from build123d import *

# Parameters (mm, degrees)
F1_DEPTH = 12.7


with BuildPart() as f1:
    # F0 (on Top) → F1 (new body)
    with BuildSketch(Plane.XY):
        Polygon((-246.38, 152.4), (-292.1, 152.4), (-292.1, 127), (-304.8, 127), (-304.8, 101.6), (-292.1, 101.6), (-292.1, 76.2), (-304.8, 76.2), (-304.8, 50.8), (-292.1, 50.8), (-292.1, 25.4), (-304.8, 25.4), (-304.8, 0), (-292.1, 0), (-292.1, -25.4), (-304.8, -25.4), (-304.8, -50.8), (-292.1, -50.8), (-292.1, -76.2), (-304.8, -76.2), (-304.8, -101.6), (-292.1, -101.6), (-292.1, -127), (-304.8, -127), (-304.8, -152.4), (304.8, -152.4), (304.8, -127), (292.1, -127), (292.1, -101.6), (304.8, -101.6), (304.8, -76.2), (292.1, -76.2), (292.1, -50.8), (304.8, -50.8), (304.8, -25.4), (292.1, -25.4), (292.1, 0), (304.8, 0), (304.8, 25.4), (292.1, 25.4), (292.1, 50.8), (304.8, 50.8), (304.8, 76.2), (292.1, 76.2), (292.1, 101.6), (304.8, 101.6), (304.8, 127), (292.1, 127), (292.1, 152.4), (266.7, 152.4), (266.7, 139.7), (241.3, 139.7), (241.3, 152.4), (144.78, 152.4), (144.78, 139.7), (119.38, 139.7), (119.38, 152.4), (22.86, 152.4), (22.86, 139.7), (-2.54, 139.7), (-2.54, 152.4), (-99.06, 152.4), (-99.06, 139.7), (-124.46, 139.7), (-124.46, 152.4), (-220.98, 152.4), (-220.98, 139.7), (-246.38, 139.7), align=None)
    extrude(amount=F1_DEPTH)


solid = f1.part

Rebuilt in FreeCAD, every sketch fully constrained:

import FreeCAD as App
import Part
import Sketcher
Q = App.Units.Quantity

doc = App.newDocument("Part")
body = doc.addObject("PartDesign::Body", "Body")

sketch1 = doc.addObject("Sketcher::SketchObject", "Sketch")
body.addObject(sketch1)
sketch1.AttachmentSupport = (doc.XY_Plane, [""])
sketch1.MapMode = "FlatFace"
sketch1.addGeometry(Part.LineSegment(App.Vector(-246.38, 152.4, 0), App.Vector(-292.1, 152.4, 0)), False)
sketch1.addGeometry(Part.LineSegment(App.Vector(-292.1, 152.4, 0), App.Vector(-292.1, 127, 0)), False)
sketch1.addGeometry(Part.LineSegment(App.Vector(-292.1, 127, 0), App.Vector(-304.8, 127, 0)), False)
sketch1.addGeometry(Part.LineSegment(App.Vector(-304.8, 127, 0), App.Vector(-304.8, 101.6, 0)), False)
sketch1.addGeometry(Part.LineSegment(App.Vector(-304.8, 101.6, 0), App.Vector(-292.1, 101.6, 0)), False)
sketch1.addGeometry(Part.LineSegment(App.Vector(-292.1, 101.6, 0), App.Vector(-292.1, 76.2, 0)), False)
sketch1.addGeometry(Part.LineSegment(App.Vector(-292.1, 76.2, 0), App.Vector(-304.8, 76.2, 0)), False)
sketch1.addGeometry(Part.LineSegment(App.Vector(-304.8, 76.2, 0), App.Vector(-304.8, 50.8, 0)), False)
sketch1.addGeometry(Part.LineSegment(App.Vector(-304.8, 50.8, 0), App.Vector(-292.1, 50.8, 0)), False)
sketch1.addGeometry(Part.LineSegment(App.Vector(-292.1, 50.8, 0), App.Vector(-292.1, 25.4, 0)), False)
sketch1.addGeometry(Part.LineSegment(App.Vector(-292.1, 25.4, 0), App.Vector(-304.8, 25.4, 0)), False)
sketch1.addGeometry(Part.LineSegment(App.Vector(-304.8, 25.4, 0), App.Vector(-304.8, 0, 0)), False)
sketch1.addGeometry(Part.LineSegment(App.Vector(-304.8, 0, 0), App.Vector(-292.1, 0, 0)), False)
sketch1.addGeometry(Part.LineSegment(App.Vector(-292.1, 0, 0), App.Vector(-292.1, -25.4, 0)), False)
sketch1.addGeometry(Part.LineSegment(App.Vector(-292.1, -25.4, 0), App.Vector(-304.8, -25.4, 0)), False)
sketch1.addGeometry(Part.LineSegment(App.Vector(-304.8, -25.4, 0), App.Vector(-304.8, -50.8, 0)), False)
sketch1.addGeometry(Part.LineSegment(App.Vector(-304.8, -50.8, 0), App.Vector(-292.1, -50.8, 0)), False)
sketch1.addGeometry(Part.LineSegment(App.Vector(-292.1, -50.8, 0), App.Vector(-292.1, -76.2, 0)), False)
sketch1.addGeometry(Part.LineSegment(App.Vector(-292.1, -76.2, 0), App.Vector(-304.8, -76.2, 0)), False)
sketch1.addGeometry(Part.LineSegment(App.Vector(-304.8, -76.2, 0), App.Vector(-304.8, -101.6, 0)), False)
sketch1.addGeometry(Part.LineSegment(App.Vector(-304.8, -101.6, 0), App.Vector(-292.1, -101.6, 0)), False)
sketch1.addGeometry(Part.LineSegment(App.Vector(-292.1, -101.6, 0), App.Vector(-292.1, -127, 0)), False)
sketch1.addGeometry(Part.LineSegment(App.Vector(-292.1, -127, 0), App.Vector(-304.8, -127, 0)), False)
sketch1.addGeometry(Part.LineSegment(App.Vector(-304.8, -127, 0), App.Vector(-304.8, -152.4, 0)), False)
sketch1.addGeometry(Part.LineSegment(App.Vector(-304.8, -152.4, 0), App.Vector(304.8, -152.4, 0)), False)
sketch1.addGeometry(Part.LineSegment(App.Vector(304.8, -152.4, 0), App.Vector(304.8, -127, 0)), False)
sketch1.addGeometry(Part.LineSegment(App.Vector(304.8, -127, 0), App.Vector(292.1, -127, 0)), False)
sketch1.addGeometry(Part.LineSegment(App.Vector(292.1, -127, 0), App.Vector(292.1, -101.6, 0)), False)
sketch1.addGeometry(Part.LineSegment(App.Vector(292.1, -101.6, 0), App.Vector(304.8, -101.6, 0)), False)
sketch1.addGeometry(Part.LineSegment(App.Vector(304.8, -101.6, 0), App.Vector(304.8, -76.2, 0)), False)
sketch1.addGeometry(Part.LineSegment(App.Vector(304.8, -76.2, 0), App.Vector(292.1, -76.2, 0)), False)
sketch1.addGeometry(Part.LineSegment(App.Vector(292.1, -76.2, 0), App.Vector(292.1, -50.8, 0)), False)
sketch1.addGeometry(Part.LineSegment(App.Vector(292.1, -50.8, 0), App.Vector(304.8, -50.8, 0)), False)
sketch1.addGeometry(Part.LineSegment(App.Vector(304.8, -50.8, 0), App.Vector(304.8, -25.4, 0)), False)
sketch1.addGeometry(Part.LineSegment(App.Vector(304.8, -25.4, 0), App.Vector(292.1, -25.4, 0)), False)
sketch1.addGeometry(Part.LineSegment(App.Vector(292.1, -25.4, 0), App.Vector(292.1, 0, 0)), False)
sketch1.addGeometry(Part.LineSegment(App.Vector(292.1, 0, 0), App.Vector(304.8, 0, 0)), False)
sketch1.addGeometry(Part.LineSegment(App.Vector(304.8, 0, 0), App.Vector(304.8, 25.4, 0)), False)
sketch1.addGeometry(Part.LineSegment(App.Vector(304.8, 25.4, 0), App.Vector(292.1, 25.4, 0)), False)
sketch1.addGeometry(Part.LineSegment(App.Vector(292.1, 25.4, 0), App.Vector(292.1, 50.8, 0)), False)
sketch1.addGeometry(Part.LineSegment(App.Vector(292.1, 50.8, 0), App.Vector(304.8, 50.8, 0)), False)
sketch1.addGeometry(Part.LineSegment(App.Vector(304.8, 50.8, 0), App.Vector(304.8, 76.2, 0)), False)
sketch1.addGeometry(Part.LineSegment(App.Vector(304.8, 76.2, 0), App.Vector(292.1, 76.2, 0)), False)
sketch1.addGeometry(Part.LineSegment(App.Vector(292.1, 76.2, 0), App.Vector(292.1, 101.6, 0)), False)
sketch1.addGeometry(Part.LineSegment(App.Vector(292.1, 101.6, 0), App.Vector(304.8, 101.6, 0)), False)
sketch1.addGeometry(Part.LineSegment(App.Vector(304.8, 101.6, 0), App.Vector(304.8, 127, 0)), False)
sketch1.addGeometry(Part.LineSegment(App.Vector(304.8, 127, 0), App.Vector(292.1, 127, 0)), False)
sketch1.addGeometry(Part.LineSegment(App.Vector(292.1, 127, 0), App.Vector(292.1, 152.4, 0)), False)
sketch1.addGeometry(Part.LineSegment(App.Vector(292.1, 152.4, 0), App.Vector(266.7, 152.4, 0)), False)
sketch1.addGeometry(Part.LineSegment(App.Vector(266.7, 152.4, 0), App.Vector(266.7, 139.7, 0)), False)
sketch1.addGeometry(Part.LineSegment(App.Vector(266.7, 139.7, 0), App.Vector(241.3, 139.7, 0)), False)
sketch1.addGeometry(Part.LineSegment(App.Vector(241.3, 139.7, 0), App.Vector(241.3, 152.4, 0)), False)
sketch1.addGeometry(Part.LineSegment(App.Vector(241.3, 152.4, 0), App.Vector(144.78, 152.4, 0)), False)
sketch1.addGeometry(Part.LineSegment(App.Vector(144.78, 152.4, 0), App.Vector(144.78, 139.7, 0)), False)
sketch1.addGeometry(Part.LineSegment(App.Vector(144.78, 139.7, 0), App.Vector(119.38, 139.7, 0)), False)
sketch1.addGeometry(Part.LineSegment(App.Vector(119.38, 139.7, 0), App.Vector(119.38, 152.4, 0)), False)
sketch1.addGeometry(Part.LineSegment(App.Vector(119.38, 152.4, 0), App.Vector(22.86, 152.4, 0)), False)
sketch1.addGeometry(Part.LineSegment(App.Vector(22.86, 152.4, 0), App.Vector(22.86, 139.7, 0)), False)
sketch1.addGeometry(Part.LineSegment(App.Vector(22.86, 139.7, 0), App.Vector(-2.54, 139.7, 0)), False)
sketch1.addGeometry(Part.LineSegment(App.Vector(-2.54, 139.7, 0), App.Vector(-2.54, 152.4, 0)), False)
sketch1.addGeometry(Part.LineSegment(App.Vector(-2.54, 152.4, 0), App.Vector(-99.06, 152.4, 0)), False)
sketch1.addGeometry(Part.LineSegment(App.Vector(-99.06, 152.4, 0), App.Vector(-99.06, 139.7, 0)), False)
sketch1.addGeometry(Part.LineSegment(App.Vector(-99.06, 139.7, 0), App.Vector(-124.46, 139.7, 0)), False)
sketch1.addGeometry(Part.LineSegment(App.Vector(-124.46, 139.7, 0), App.Vector(-124.46, 152.4, 0)), False)
sketch1.addGeometry(Part.LineSegment(App.Vector(-124.46, 152.4, 0), App.Vector(-220.98, 152.4, 0)), False)
sketch1.addGeometry(Part.LineSegment(App.Vector(-220.98, 152.4, 0), App.Vector(-220.98, 139.7, 0)), False)
sketch1.addGeometry(Part.LineSegment(App.Vector(-220.98, 139.7, 0), App.Vector(-246.38, 139.7, 0)), False)
sketch1.addGeometry(Part.LineSegment(App.Vector(-246.38, 139.7, 0), App.Vector(-246.38, 152.4, 0)), False)
sketch1.addConstraint(Sketcher.Constraint("Coincident", 0, 2, 1, 1))
sketch1.addConstraint(Sketcher.Constraint("Coincident", 1, 2, 2, 1))
sketch1.addConstraint(Sketcher.Constraint("Coincident", 2, 2, 3, 1))
sketch1.addConstraint(Sketcher.Constraint("Coincident", 3, 2, 4, 1))
sketch1.addConstraint(Sketcher.Constraint("Coincident", 4, 2, 5, 1))
sketch1.addConstraint(Sketcher.Constraint("Coincident", 5, 2, 6, 1))
sketch1.addConstraint(Sketcher.Constraint("Coincident", 6, 2, 7, 1))
sketch1.addConstraint(Sketcher.Constraint("Coincident", 7, 2, 8, 1))
sketch1.addConstraint(Sketcher.Constraint("Coincident", 8, 2, 9, 1))
sketch1.addConstraint(Sketcher.Constraint("Coincident", 9, 2, 10, 1))
sketch1.addConstraint(Sketcher.Constraint("Coincident", 10, 2, 11, 1))
sketch1.addConstraint(Sketcher.Constraint("Coincident", 11, 2, 12, 1))
sketch1.addConstraint(Sketcher.Constraint("Coincident", 12, 2, 13, 1))
sketch1.addConstraint(Sketcher.Constraint("Coincident", 13, 2, 14, 1))
sketch1.addConstraint(Sketcher.Constraint("Coincident", 14, 2, 15, 1))
sketch1.addConstraint(Sketcher.Constraint("Coincident", 15, 2, 16, 1))
sketch1.addConstraint(Sketcher.Constraint("Coincident", 16, 2, 17, 1))
sketch1.addConstraint(Sketcher.Constraint("Coincident", 17, 2, 18, 1))
sketch1.addConstraint(Sketcher.Constraint("Coincident", 18, 2, 19, 1))
sketch1.addConstraint(Sketcher.Constraint("Coincident", 19, 2, 20, 1))
sketch1.addConstraint(Sketcher.Constraint("Coincident", 20, 2, 21, 1))
sketch1.addConstraint(Sketcher.Constraint("Coincident", 21, 2, 22, 1))
sketch1.addConstraint(Sketcher.Constraint("Coincident", 22, 2, 23, 1))
sketch1.addConstraint(Sketcher.Constraint("Coincident", 23, 2, 24, 1))
sketch1.addConstraint(Sketcher.Constraint("Coincident", 24, 2, 25, 1))
sketch1.addConstraint(Sketcher.Constraint("Coincident", 25, 2, 26, 1))
sketch1.addConstraint(Sketcher.Constraint("Coincident", 26, 2, 27, 1))
sketch1.addConstraint(Sketcher.Constraint("Coincident", 27, 2, 28, 1))
sketch1.addConstraint(Sketcher.Constraint("Coincident", 28, 2, 29, 1))
sketch1.addConstraint(Sketcher.Constraint("Coincident", 29, 2, 30, 1))
sketch1.addConstraint(Sketcher.Constraint("Coincident", 30, 2, 31, 1))
sketch1.addConstraint(Sketcher.Constraint("Coincident", 31, 2, 32, 1))
sketch1.addConstraint(Sketcher.Constraint("Coincident", 32, 2, 33, 1))
sketch1.addConstraint(Sketcher.Constraint("Coincident", 33, 2, 34, 1))
sketch1.addConstraint(Sketcher.Constraint("Coincident", 34, 2, 35, 1))
sketch1.addConstraint(Sketcher.Constraint("Coincident", 35, 2, 36, 1))
sketch1.addConstraint(Sketcher.Constraint("Coincident", 36, 2, 37, 1))
sketch1.addConstraint(Sketcher.Constraint("Coincident", 37, 2, 38, 1))
sketch1.addConstraint(Sketcher.Constraint("Coincident", 38, 2, 39, 1))
sketch1.addConstraint(Sketcher.Constraint("Coincident", 39, 2, 40, 1))
sketch1.addConstraint(Sketcher.Constraint("Coincident", 40, 2, 41, 1))
sketch1.addConstraint(Sketcher.Constraint("Coincident", 41, 2, 42, 1))
sketch1.addConstraint(Sketcher.Constraint("Coincident", 42, 2, 43, 1))
sketch1.addConstraint(Sketcher.Constraint("Coincident", 43, 2, 44, 1))
sketch1.addConstraint(Sketcher.Constraint("Coincident", 44, 2, 45, 1))
sketch1.addConstraint(Sketcher.Constraint("Coincident", 45, 2, 46, 1))
sketch1.addConstraint(Sketcher.Constraint("Coincident", 46, 2, 47, 1))
sketch1.addConstraint(Sketcher.Constraint("Coincident", 47, 2, 48, 1))
sketch1.addConstraint(Sketcher.Constraint("Coincident", 48, 2, 49, 1))
sketch1.addConstraint(Sketcher.Constraint("Coincident", 49, 2, 50, 1))
sketch1.addConstraint(Sketcher.Constraint("Coincident", 50, 2, 51, 1))
sketch1.addConstraint(Sketcher.Constraint("Coincident", 51, 2, 52, 1))
sketch1.addConstraint(Sketcher.Constraint("Coincident", 52, 2, 53, 1))
sketch1.addConstraint(Sketcher.Constraint("Coincident", 53, 2, 54, 1))
sketch1.addConstraint(Sketcher.Constraint("Coincident", 54, 2, 55, 1))
sketch1.addConstraint(Sketcher.Constraint("Coincident", 55, 2, 56, 1))
sketch1.addConstraint(Sketcher.Constraint("Coincident", 56, 2, 57, 1))
sketch1.addConstraint(Sketcher.Constraint("Coincident", 57, 2, 58, 1))
sketch1.addConstraint(Sketcher.Constraint("Coincident", 58, 2, 59, 1))
sketch1.addConstraint(Sketcher.Constraint("Coincident", 59, 2, 60, 1))
sketch1.addConstraint(Sketcher.Constraint("Coincident", 60, 2, 61, 1))
sketch1.addConstraint(Sketcher.Constraint("Coincident", 61, 2, 62, 1))
sketch1.addConstraint(Sketcher.Constraint("Coincident", 62, 2, 63, 1))
sketch1.addConstraint(Sketcher.Constraint("Coincident", 63, 2, 64, 1))
sketch1.addConstraint(Sketcher.Constraint("Coincident", 64, 2, 65, 1))
sketch1.addConstraint(Sketcher.Constraint("Coincident", 65, 2, 66, 1))
sketch1.addConstraint(Sketcher.Constraint("Coincident", 66, 2, 67, 1))
sketch1.addConstraint(Sketcher.Constraint("Coincident", 67, 2, 0, 1))
sketch1.addConstraint(Sketcher.Constraint("Horizontal", 0))
sketch1.addConstraint(Sketcher.Constraint("Vertical", 1))
sketch1.addConstraint(Sketcher.Constraint("Horizontal", 2))
sketch1.addConstraint(Sketcher.Constraint("Vertical", 3))
sketch1.addConstraint(Sketcher.Constraint("Horizontal", 4))
sketch1.addConstraint(Sketcher.Constraint("Vertical", 5))
sketch1.addConstraint(Sketcher.Constraint("Horizontal", 6))
sketch1.addConstraint(Sketcher.Constraint("Vertical", 7))
sketch1.addConstraint(Sketcher.Constraint("Horizontal", 8))
sketch1.addConstraint(Sketcher.Constraint("Vertical", 9))
sketch1.addConstraint(Sketcher.Constraint("Horizontal", 10))
sketch1.addConstraint(Sketcher.Constraint("Vertical", 11))
sketch1.addConstraint(Sketcher.Constraint("Horizontal", 12))
sketch1.addConstraint(Sketcher.Constraint("Vertical", 13))
sketch1.addConstraint(Sketcher.Constraint("Horizontal", 14))
sketch1.addConstraint(Sketcher.Constraint("Vertical", 15))
sketch1.addConstraint(Sketcher.Constraint("Horizontal", 16))
sketch1.addConstraint(Sketcher.Constraint("Vertical", 17))
sketch1.addConstraint(Sketcher.Constraint("Horizontal", 18))
sketch1.addConstraint(Sketcher.Constraint("Vertical", 19))
sketch1.addConstraint(Sketcher.Constraint("Horizontal", 20))
sketch1.addConstraint(Sketcher.Constraint("Vertical", 21))
sketch1.addConstraint(Sketcher.Constraint("Horizontal", 22))
sketch1.addConstraint(Sketcher.Constraint("Vertical", 23))
sketch1.addConstraint(Sketcher.Constraint("Horizontal", 24))
sketch1.addConstraint(Sketcher.Constraint("Vertical", 25))
sketch1.addConstraint(Sketcher.Constraint("Horizontal", 26))
sketch1.addConstraint(Sketcher.Constraint("Vertical", 27))
sketch1.addConstraint(Sketcher.Constraint("Horizontal", 28))
sketch1.addConstraint(Sketcher.Constraint("Vertical", 29))
sketch1.addConstraint(Sketcher.Constraint("Horizontal", 30))
sketch1.addConstraint(Sketcher.Constraint("Vertical", 31))
sketch1.addConstraint(Sketcher.Constraint("Horizontal", 32))
sketch1.addConstraint(Sketcher.Constraint("Vertical", 33))
sketch1.addConstraint(Sketcher.Constraint("Horizontal", 34))
sketch1.addConstraint(Sketcher.Constraint("Vertical", 35))
sketch1.addConstraint(Sketcher.Constraint("Horizontal", 36))
sketch1.addConstraint(Sketcher.Constraint("Vertical", 37))
sketch1.addConstraint(Sketcher.Constraint("Horizontal", 38))
sketch1.addConstraint(Sketcher.Constraint("Vertical", 39))
sketch1.addConstraint(Sketcher.Constraint("Horizontal", 40))
sketch1.addConstraint(Sketcher.Constraint("Vertical", 41))
sketch1.addConstraint(Sketcher.Constraint("Horizontal", 42))
sketch1.addConstraint(Sketcher.Constraint("Vertical", 43))
sketch1.addConstraint(Sketcher.Constraint("Horizontal", 44))
sketch1.addConstraint(Sketcher.Constraint("Vertical", 45))
sketch1.addConstraint(Sketcher.Constraint("Horizontal", 46))
sketch1.addConstraint(Sketcher.Constraint("Vertical", 47))
sketch1.addConstraint(Sketcher.Constraint("Horizontal", 48))
sketch1.addConstraint(Sketcher.Constraint("Vertical", 49))
sketch1.addConstraint(Sketcher.Constraint("Horizontal", 50))
sketch1.addConstraint(Sketcher.Constraint("Vertical", 51))
sketch1.addConstraint(Sketcher.Constraint("Horizontal", 52))
sketch1.addConstraint(Sketcher.Constraint("Vertical", 53))
sketch1.addConstraint(Sketcher.Constraint("Horizontal", 54))
sketch1.addConstraint(Sketcher.Constraint("Vertical", 55))
sketch1.addConstraint(Sketcher.Constraint("Horizontal", 56))
sketch1.addConstraint(Sketcher.Constraint("Vertical", 57))
sketch1.addConstraint(Sketcher.Constraint("Horizontal", 58))
sketch1.addConstraint(Sketcher.Constraint("Vertical", 59))
sketch1.addConstraint(Sketcher.Constraint("Horizontal", 60))
sketch1.addConstraint(Sketcher.Constraint("Vertical", 61))
sketch1.addConstraint(Sketcher.Constraint("Horizontal", 62))
sketch1.addConstraint(Sketcher.Constraint("Vertical", 63))
sketch1.addConstraint(Sketcher.Constraint("Horizontal", 64))
sketch1.addConstraint(Sketcher.Constraint("Vertical", 65))
sketch1.addConstraint(Sketcher.Constraint("Horizontal", 66))
sketch1.addConstraint(Sketcher.Constraint("Vertical", 67))
sketch1.addConstraint(Sketcher.Constraint("Symmetric", 2, 2, 25, 2, -1, 1))
sketch1.addConstraint(Sketcher.Constraint("Symmetric", 4, 2, 27, 2, -1, 1))
sketch1.addConstraint(Sketcher.Constraint("Symmetric", 6, 2, 29, 2, -1, 1))
sketch1.addConstraint(Sketcher.Constraint("Symmetric", 8, 2, 31, 2, -1, 1))
sketch1.addConstraint(Sketcher.Constraint("Symmetric", 10, 2, 33, 2, -1, 1))
sketch1.addConstraint(Sketcher.Constraint("Symmetric", 12, 2, 35, 2, -1, 1))
sketch1.addConstraint(Sketcher.Constraint("Symmetric", 14, 2, 37, 2, -1, 1))
sketch1.addConstraint(Sketcher.Constraint("Symmetric", 16, 2, 39, 2, -1, 1))
sketch1.addConstraint(Sketcher.Constraint("Symmetric", 18, 2, 41, 2, -1, 1))
sketch1.addConstraint(Sketcher.Constraint("Symmetric", 20, 2, 43, 2, -1, 1))
sketch1.addConstraint(Sketcher.Constraint("Symmetric", 22, 2, 45, 2, -1, 1))
sketch1.addConstraint(Sketcher.Constraint("Symmetric", 22, 2, 25, 2, -2))
sketch1.addConstraint(Sketcher.Constraint("Symmetric", 20, 2, 27, 2, -2))
sketch1.addConstraint(Sketcher.Constraint("Symmetric", 18, 2, 29, 2, -2))
sketch1.addConstraint(Sketcher.Constraint("Symmetric", 16, 2, 31, 2, -2))
sketch1.addConstraint(Sketcher.Constraint("Symmetric", 14, 2, 33, 2, -2))
sketch1.addConstraint(Sketcher.Constraint("Symmetric", 0, 2, 47, 2, -2))
sketch1.addConstraint(Sketcher.Constraint("PointOnObject", 11, 2, -1))
sketch1.addConstraint(Sketcher.Constraint("Horizontal", 48, 2, 51, 2))
sketch1.addConstraint(Sketcher.Constraint("Horizontal", 50, 2, 53, 2))
sketch1.addConstraint(Sketcher.Constraint("Horizontal", 52, 2, 55, 2))
sketch1.addConstraint(Sketcher.Constraint("Horizontal", 54, 2, 57, 2))
sketch1.addConstraint(Sketcher.Constraint("Horizontal", 56, 2, 59, 2))
sketch1.addConstraint(Sketcher.Constraint("Horizontal", 58, 2, 61, 2))
sketch1.addConstraint(Sketcher.Constraint("Horizontal", 60, 2, 63, 2))
sketch1.addConstraint(Sketcher.Constraint("Horizontal", 62, 2, 65, 2))
sketch1.addConstraint(Sketcher.Constraint("Vertical", 1, 2, 4, 2))
sketch1.addConstraint(Sketcher.Constraint("Vertical", 3, 2, 6, 2))
sketch1.addConstraint(Sketcher.Constraint("Vertical", 5, 2, 8, 2))
sketch1.addConstraint(Sketcher.Constraint("Vertical", 7, 2, 10, 2))
sketch1.addConstraint(Sketcher.Constraint("Vertical", 9, 2, 12, 2))
sketch1.addConstraint(Sketcher.Constraint("Equal", 48, 50))
sketch1.addConstraint(Sketcher.Constraint("Equal", 50, 54))
sketch1.addConstraint(Sketcher.Constraint("Equal", 52, 56))
sketch1.addConstraint(Sketcher.Constraint("Equal", 54, 58))
sketch1.addConstraint(Sketcher.Constraint("Equal", 56, 60))
sketch1.addConstraint(Sketcher.Constraint("Equal", 58, 62))
sketch1.addConstraint(Sketcher.Constraint("Equal", 60, 64))
sketch1.addConstraint(Sketcher.Constraint("Equal", 62, 66))
sketch1.addConstraint(Sketcher.Constraint("Equal", 66, 1))
sketch1.addConstraint(Sketcher.Constraint("Equal", 1, 3))
sketch1.addConstraint(Sketcher.Constraint("Equal", 3, 5))
sketch1.addConstraint(Sketcher.Constraint("Equal", 5, 7))
sketch1.addConstraint(Sketcher.Constraint("Equal", 7, 9))
sketch1.addConstraint(Sketcher.Constraint("Equal", 9, 11))
sketch1.addConstraint(Sketcher.Constraint("Equal", 21, 23))
sketch1.addConstraint(Sketcher.Constraint("Equal", 46, 49))
sketch1.addConstraint(Sketcher.Constraint("DistanceX", 24, 1, 24, 2, Q("24 in")))
sketch1.addConstraint(Sketcher.Constraint("DistanceX", 48, 2, 48, 1, Q("1 in")))
sketch1.addConstraint(Sketcher.Constraint("DistanceX", 0, 2, 0, 1, Q("1.8 in")))
sketch1.addConstraint(Sketcher.Constraint("DistanceX", 2, 2, 2, 1, Q("0.5 in")))
pad1 = doc.addObject("PartDesign::Pad", "Pad")
body.addObject(pad1)
pad1.Profile = sketch1
pad1.Length = Q("0.5 in")

doc.recompute()
